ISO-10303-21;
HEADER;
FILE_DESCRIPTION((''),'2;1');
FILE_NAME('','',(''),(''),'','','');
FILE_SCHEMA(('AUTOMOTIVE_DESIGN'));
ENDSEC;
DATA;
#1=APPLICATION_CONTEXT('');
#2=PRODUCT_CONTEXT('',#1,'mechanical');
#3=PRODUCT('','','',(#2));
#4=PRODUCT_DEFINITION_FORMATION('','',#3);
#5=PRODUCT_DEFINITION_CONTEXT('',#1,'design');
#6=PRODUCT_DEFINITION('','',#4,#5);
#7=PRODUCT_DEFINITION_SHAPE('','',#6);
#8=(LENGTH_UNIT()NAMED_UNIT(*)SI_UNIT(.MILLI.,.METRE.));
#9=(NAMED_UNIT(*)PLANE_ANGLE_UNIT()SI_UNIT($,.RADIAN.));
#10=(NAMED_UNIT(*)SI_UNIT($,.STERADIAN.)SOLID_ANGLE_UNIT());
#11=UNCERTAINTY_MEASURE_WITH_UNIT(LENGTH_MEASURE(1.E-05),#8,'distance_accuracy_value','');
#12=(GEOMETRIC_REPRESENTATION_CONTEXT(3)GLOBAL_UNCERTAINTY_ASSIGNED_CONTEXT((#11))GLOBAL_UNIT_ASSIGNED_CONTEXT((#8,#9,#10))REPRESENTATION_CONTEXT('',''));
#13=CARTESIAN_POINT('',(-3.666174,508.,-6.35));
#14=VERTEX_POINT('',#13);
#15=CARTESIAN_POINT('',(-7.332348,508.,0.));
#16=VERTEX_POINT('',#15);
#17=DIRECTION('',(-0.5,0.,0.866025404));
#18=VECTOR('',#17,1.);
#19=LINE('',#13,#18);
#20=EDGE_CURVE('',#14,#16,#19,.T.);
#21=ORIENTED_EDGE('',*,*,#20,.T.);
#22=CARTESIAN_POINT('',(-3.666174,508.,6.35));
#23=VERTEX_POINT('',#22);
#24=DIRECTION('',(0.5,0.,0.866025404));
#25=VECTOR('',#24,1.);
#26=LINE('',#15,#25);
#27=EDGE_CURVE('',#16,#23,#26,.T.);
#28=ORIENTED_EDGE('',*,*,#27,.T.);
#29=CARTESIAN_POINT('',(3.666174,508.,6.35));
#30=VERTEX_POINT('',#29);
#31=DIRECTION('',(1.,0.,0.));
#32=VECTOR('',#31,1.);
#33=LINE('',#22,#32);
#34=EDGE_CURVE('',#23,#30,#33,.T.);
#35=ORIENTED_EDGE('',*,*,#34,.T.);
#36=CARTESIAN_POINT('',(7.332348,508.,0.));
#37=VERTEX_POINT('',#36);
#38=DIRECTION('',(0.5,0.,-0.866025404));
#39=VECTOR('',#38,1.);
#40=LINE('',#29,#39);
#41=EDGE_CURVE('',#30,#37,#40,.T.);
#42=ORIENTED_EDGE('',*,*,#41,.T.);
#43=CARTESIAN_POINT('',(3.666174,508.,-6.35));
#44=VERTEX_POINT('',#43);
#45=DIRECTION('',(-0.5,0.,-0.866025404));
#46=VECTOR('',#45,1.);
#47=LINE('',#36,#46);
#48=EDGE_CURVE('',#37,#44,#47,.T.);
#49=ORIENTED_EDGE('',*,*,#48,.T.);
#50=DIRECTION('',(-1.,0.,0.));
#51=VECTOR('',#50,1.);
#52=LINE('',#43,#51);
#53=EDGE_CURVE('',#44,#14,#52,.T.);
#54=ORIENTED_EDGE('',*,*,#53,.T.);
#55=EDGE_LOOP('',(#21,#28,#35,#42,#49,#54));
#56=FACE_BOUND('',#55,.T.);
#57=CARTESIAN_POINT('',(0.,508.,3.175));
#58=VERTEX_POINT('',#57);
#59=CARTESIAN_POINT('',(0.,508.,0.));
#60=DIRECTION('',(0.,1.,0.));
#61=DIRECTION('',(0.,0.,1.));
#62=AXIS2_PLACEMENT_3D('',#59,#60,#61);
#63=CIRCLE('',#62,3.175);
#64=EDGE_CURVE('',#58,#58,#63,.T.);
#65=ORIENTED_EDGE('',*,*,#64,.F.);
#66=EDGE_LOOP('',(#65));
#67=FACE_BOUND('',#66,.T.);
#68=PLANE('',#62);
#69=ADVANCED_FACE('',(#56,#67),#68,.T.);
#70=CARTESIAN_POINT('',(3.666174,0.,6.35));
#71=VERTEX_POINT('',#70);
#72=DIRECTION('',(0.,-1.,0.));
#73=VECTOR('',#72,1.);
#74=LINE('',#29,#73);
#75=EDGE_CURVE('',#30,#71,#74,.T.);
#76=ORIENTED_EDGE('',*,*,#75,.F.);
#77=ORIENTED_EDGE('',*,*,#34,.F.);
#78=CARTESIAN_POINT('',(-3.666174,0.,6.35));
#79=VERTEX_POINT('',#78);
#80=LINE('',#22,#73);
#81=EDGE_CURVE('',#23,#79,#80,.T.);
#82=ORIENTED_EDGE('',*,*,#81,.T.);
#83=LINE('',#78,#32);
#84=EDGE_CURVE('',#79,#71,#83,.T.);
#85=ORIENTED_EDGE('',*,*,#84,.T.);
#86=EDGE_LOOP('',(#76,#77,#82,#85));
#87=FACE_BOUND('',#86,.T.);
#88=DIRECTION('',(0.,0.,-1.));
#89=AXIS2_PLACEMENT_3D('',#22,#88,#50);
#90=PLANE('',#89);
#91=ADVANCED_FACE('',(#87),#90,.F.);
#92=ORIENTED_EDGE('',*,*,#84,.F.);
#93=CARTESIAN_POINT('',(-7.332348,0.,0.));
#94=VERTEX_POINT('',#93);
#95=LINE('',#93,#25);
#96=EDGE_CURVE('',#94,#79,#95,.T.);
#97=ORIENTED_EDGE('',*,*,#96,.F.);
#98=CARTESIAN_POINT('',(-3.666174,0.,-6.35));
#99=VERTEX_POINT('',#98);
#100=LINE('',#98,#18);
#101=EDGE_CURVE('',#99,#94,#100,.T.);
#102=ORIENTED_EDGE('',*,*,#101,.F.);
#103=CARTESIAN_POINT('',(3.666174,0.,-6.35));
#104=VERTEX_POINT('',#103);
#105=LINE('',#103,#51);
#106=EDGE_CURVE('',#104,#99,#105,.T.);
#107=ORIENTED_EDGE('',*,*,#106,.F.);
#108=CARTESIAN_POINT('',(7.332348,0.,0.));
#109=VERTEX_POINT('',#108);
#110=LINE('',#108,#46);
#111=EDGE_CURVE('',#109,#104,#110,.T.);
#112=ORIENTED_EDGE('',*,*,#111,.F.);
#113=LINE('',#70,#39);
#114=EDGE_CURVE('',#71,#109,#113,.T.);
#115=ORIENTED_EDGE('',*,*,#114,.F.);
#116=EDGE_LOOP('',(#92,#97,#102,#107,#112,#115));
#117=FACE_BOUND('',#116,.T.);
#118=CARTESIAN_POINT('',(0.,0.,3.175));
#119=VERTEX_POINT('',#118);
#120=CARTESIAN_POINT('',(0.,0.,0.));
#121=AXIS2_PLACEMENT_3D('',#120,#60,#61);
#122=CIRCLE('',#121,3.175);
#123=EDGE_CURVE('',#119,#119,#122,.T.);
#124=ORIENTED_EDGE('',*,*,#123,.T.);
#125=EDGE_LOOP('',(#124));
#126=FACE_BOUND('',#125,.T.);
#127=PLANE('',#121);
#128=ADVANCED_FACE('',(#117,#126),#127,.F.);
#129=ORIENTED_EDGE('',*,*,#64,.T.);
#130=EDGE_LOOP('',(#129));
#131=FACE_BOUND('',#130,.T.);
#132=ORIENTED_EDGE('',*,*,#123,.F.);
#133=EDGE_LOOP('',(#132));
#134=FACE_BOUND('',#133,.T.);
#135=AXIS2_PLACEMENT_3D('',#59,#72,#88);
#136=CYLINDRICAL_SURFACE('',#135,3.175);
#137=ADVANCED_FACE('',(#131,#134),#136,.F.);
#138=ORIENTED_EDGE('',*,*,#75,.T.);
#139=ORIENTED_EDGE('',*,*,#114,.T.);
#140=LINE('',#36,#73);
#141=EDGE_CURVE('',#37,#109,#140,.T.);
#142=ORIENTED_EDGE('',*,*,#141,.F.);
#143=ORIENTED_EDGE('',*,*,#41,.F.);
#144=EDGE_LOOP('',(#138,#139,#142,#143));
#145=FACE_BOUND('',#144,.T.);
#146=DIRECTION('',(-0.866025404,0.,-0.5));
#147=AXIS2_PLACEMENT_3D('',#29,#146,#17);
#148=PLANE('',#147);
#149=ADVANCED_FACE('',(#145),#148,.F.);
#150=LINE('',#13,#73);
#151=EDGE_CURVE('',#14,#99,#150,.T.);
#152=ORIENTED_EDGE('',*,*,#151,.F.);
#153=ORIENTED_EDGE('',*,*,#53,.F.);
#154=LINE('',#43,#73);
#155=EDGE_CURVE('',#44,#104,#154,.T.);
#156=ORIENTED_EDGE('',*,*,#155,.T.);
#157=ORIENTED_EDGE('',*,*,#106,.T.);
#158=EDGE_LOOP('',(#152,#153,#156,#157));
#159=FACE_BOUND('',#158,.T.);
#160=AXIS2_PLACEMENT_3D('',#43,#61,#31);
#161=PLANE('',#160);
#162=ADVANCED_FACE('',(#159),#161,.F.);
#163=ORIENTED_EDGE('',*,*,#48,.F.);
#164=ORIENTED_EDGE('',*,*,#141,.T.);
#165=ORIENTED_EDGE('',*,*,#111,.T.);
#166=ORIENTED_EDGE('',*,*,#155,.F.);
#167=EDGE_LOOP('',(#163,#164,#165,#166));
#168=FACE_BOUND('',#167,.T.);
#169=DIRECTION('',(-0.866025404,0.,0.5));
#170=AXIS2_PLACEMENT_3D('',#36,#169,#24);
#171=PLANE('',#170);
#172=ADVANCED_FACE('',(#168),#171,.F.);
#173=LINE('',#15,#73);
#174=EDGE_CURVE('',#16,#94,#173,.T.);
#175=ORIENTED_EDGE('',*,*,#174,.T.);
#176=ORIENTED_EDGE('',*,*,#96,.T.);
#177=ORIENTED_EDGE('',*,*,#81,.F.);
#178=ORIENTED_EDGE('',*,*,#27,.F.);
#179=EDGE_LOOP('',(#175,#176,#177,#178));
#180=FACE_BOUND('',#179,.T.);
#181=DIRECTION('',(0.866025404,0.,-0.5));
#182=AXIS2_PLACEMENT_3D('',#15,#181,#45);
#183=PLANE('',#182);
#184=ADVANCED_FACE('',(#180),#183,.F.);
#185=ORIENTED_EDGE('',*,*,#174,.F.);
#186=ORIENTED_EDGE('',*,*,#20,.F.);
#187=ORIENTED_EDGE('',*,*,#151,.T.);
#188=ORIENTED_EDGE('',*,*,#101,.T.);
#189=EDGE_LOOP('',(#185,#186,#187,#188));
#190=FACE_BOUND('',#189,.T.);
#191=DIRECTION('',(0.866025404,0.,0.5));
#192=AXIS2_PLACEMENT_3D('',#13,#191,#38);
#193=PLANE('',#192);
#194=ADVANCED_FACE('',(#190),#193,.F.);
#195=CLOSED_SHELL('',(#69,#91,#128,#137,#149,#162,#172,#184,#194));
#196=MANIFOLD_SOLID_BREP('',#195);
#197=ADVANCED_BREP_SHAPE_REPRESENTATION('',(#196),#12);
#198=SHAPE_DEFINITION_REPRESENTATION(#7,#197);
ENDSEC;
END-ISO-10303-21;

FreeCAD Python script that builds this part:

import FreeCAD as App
import Part
import Sketcher

V = App.Vector
Q = App.Units.Quantity

doc = App.newDocument("Part")
body = doc.addObject("PartDesign::Body", "Body")

sketch1 = body.newObject("Sketcher::SketchObject", "Sketch")
sketch1.AttachmentSupport = (doc.getObject("XZ_Plane"), [""])
sketch1.MapMode = "FlatFace"
sketch1.addGeometry(Part.LineSegment(V(3.7, 6.3, 0), V(7.3, 0, 0)), False)
sketch1.addGeometry(Part.LineSegment(V(7.3, 0, 0), V(3.7, -6.3, 0)), False)
sketch1.addGeometry(Part.LineSegment(V(3.7, -6.3, 0), V(-3.7, -6.3, 0)), False)
sketch1.addGeometry(Part.LineSegment(V(-3.7, -6.3, 0), V(-7.3, 0, 0)), False)
sketch1.addGeometry(Part.LineSegment(V(-7.3, 0, 0), V(-3.7, 6.3, 0)), False)
sketch1.addGeometry(Part.LineSegment(V(-3.7, 6.3, 0), V(3.7, 6.3, 0)), False)
sketch1.addGeometry(Part.Circle(V(0, 0, 0), V(0, 0, 1), 3.2), False)
sketch1.addConstraint(Sketcher.Constraint("Coincident", 0, 2, 1, 1))
sketch1.addConstraint(Sketcher.Constraint("Coincident", 1, 2, 2, 1))
sketch1.addConstraint(Sketcher.Constraint("Coincident", 2, 2, 3, 1))
sketch1.addConstraint(Sketcher.Constraint("Coincident", 3, 2, 4, 1))
sketch1.addConstraint(Sketcher.Constraint("Coincident", 4, 2, 5, 1))
sketch1.addConstraint(Sketcher.Constraint("Coincident", 5, 2, 0, 1))
sketch1.addConstraint(Sketcher.Constraint("Horizontal", 2))
sketch1.addConstraint(Sketcher.Constraint("Horizontal", 5))
sketch1.addConstraint(Sketcher.Constraint("Coincident", 6, 3, -1, 1))
sketch1.addConstraint(Sketcher.Constraint("Symmetric", 0, 2, 3, 2, -1, 1))
sketch1.addConstraint(Sketcher.Constraint("Symmetric", 1, 2, 4, 2, -1, 1))
sketch1.addConstraint(Sketcher.Constraint("PointOnObject", 0, 2, -1))
sketch1.addConstraint(Sketcher.Constraint("Parallel", 0, 3))
sketch1.addConstraint(Sketcher.Constraint("Vertical", 2, 2, 4, 2))
sketch1.addConstraint(Sketcher.Constraint("Diameter", 6, Q("0.25 in")))
sketch1.addConstraint(Sketcher.Constraint("Angle", 0, Q("-60 deg")))
sketch1.addConstraint(Sketcher.Constraint("DistanceY", 2, 2, 4, 2, Q("0.5 in")))
sketch1.addConstraint(Sketcher.Constraint("DistanceX", 2, 2, 2, 1, Q("7.332348 mm")))
pad1 = body.newObject("PartDesign::Pad", "Pad")
pad1.Profile = sketch1
pad1.Length = Q("20 in")
pad1.Reversed = True

doc.recompute()
